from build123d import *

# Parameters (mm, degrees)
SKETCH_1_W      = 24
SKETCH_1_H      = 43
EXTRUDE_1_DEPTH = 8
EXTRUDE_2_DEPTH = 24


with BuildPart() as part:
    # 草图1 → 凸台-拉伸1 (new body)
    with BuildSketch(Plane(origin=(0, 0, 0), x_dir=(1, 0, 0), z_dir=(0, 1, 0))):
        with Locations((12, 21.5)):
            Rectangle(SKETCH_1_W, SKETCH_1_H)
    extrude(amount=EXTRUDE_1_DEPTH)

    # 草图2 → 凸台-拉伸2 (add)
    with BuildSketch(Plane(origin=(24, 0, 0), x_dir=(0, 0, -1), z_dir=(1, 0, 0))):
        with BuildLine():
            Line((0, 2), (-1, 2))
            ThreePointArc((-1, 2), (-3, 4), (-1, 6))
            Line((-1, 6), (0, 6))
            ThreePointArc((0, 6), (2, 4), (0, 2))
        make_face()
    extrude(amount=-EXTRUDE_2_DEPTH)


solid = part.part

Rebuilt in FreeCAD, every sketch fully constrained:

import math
import FreeCAD as App
import Part
import Sketcher
Q = App.Units.Quantity


def add_polygon(sketch, points):
    """Adds a closed chain of lines whose ends are joined by coincident constraints."""
    first, n = sketch.GeometryCount, len(points)
    for a, b in zip(points, points[1:] + points[:1]):
        sketch.addGeometry(Part.LineSegment(App.Vector(*a, 0), App.Vector(*b, 0)), False)
    for i in range(n):
        sketch.addConstraint(Sketcher.Constraint("Coincident", first + i, 2, first + (i + 1) % n, 1))

doc = App.newDocument("Part")
body = doc.addObject("PartDesign::Body", "Body")

# Sketch on XZ plane
sketch1 = body.newObject("Sketcher::SketchObject", "Sketch")
sketch1.AttachmentSupport = (doc.getObject("XZ_Plane"), [""])
sketch1.MapMode = "FlatFace"
add_polygon(sketch1, [(0, -43), (0, 0), (24, 0), (24, -43)])  # lines 0-3
sketch1.addConstraint([
    Sketcher.Constraint("Vertical", 0),
    Sketcher.Constraint("Horizontal", 1),
    Sketcher.Constraint("Vertical", 2),
    Sketcher.Constraint("Horizontal", 3),
    Sketcher.Constraint("Coincident", 0, 2, -1, 1),
    Sketcher.Constraint("DistanceX", 1, 1, 1, 2, Q("24 mm")),
    Sketcher.Constraint("DistanceY", 0, 1, 0, 2, Q("43 mm")),
])
pad1 = body.newObject("PartDesign::Pad", "Pad")
pad1.Profile = sketch1
pad1.Length = 8
pad1.Reversed = True

# Sketch on YZ plane
sketch2 = body.newObject("Sketcher::SketchObject", "Sketch001")
sketch2.AttachmentSupport = (doc.getObject("YZ_Plane"), [""])
sketch2.MapMode = "FlatFace"
sketch2.AttachmentOffset = App.Placement(App.Vector(0, 0, 24), App.Rotation())
sketch2.addGeometry([
    Part.LineSegment(App.Vector(2, 1, 0), App.Vector(2, 0, 0)),
    Part.ArcOfCircle(Part.Circle(App.Vector(4, 0, 0), App.Vector(0, 0, 1), 2), math.radians(180), math.radians(360)),
    Part.LineSegment(App.Vector(6, 0, 0), App.Vector(6, 1, 0)),
    Part.ArcOfCircle(Part.Circle(App.Vector(4, 1, 0), App.Vector(0, 0, 1), 2), math.radians(0), math.radians(180)),
], False)
sketch2.addConstraint([
    Sketcher.Constraint("Tangent", 0, 2, 1, 1),
    Sketcher.Constraint("Tangent", 1, 2, 2, 1),
    Sketcher.Constraint("Tangent", 2, 2, 3, 1),
    Sketcher.Constraint("Tangent", 3, 2, 0, 1),
    Sketcher.Constraint("Vertical", 0),
    Sketcher.Constraint("Vertical", 2),
    Sketcher.Constraint("PointOnObject", 1, 3, -1),
    Sketcher.Constraint("Radius", 1, Q("2 mm")),
    Sketcher.Constraint("DistanceY", 0, 2, 0, 1, Q("1 mm")),
    Sketcher.Constraint("DistanceX", -1, 1, 1, 3, Q("4 mm")),
])
pad2 = body.newObject("PartDesign::Pad", "Pad001")
pad2.Profile = sketch2
pad2.Length = 24
pad2.Reversed = True

doc.recompute()
